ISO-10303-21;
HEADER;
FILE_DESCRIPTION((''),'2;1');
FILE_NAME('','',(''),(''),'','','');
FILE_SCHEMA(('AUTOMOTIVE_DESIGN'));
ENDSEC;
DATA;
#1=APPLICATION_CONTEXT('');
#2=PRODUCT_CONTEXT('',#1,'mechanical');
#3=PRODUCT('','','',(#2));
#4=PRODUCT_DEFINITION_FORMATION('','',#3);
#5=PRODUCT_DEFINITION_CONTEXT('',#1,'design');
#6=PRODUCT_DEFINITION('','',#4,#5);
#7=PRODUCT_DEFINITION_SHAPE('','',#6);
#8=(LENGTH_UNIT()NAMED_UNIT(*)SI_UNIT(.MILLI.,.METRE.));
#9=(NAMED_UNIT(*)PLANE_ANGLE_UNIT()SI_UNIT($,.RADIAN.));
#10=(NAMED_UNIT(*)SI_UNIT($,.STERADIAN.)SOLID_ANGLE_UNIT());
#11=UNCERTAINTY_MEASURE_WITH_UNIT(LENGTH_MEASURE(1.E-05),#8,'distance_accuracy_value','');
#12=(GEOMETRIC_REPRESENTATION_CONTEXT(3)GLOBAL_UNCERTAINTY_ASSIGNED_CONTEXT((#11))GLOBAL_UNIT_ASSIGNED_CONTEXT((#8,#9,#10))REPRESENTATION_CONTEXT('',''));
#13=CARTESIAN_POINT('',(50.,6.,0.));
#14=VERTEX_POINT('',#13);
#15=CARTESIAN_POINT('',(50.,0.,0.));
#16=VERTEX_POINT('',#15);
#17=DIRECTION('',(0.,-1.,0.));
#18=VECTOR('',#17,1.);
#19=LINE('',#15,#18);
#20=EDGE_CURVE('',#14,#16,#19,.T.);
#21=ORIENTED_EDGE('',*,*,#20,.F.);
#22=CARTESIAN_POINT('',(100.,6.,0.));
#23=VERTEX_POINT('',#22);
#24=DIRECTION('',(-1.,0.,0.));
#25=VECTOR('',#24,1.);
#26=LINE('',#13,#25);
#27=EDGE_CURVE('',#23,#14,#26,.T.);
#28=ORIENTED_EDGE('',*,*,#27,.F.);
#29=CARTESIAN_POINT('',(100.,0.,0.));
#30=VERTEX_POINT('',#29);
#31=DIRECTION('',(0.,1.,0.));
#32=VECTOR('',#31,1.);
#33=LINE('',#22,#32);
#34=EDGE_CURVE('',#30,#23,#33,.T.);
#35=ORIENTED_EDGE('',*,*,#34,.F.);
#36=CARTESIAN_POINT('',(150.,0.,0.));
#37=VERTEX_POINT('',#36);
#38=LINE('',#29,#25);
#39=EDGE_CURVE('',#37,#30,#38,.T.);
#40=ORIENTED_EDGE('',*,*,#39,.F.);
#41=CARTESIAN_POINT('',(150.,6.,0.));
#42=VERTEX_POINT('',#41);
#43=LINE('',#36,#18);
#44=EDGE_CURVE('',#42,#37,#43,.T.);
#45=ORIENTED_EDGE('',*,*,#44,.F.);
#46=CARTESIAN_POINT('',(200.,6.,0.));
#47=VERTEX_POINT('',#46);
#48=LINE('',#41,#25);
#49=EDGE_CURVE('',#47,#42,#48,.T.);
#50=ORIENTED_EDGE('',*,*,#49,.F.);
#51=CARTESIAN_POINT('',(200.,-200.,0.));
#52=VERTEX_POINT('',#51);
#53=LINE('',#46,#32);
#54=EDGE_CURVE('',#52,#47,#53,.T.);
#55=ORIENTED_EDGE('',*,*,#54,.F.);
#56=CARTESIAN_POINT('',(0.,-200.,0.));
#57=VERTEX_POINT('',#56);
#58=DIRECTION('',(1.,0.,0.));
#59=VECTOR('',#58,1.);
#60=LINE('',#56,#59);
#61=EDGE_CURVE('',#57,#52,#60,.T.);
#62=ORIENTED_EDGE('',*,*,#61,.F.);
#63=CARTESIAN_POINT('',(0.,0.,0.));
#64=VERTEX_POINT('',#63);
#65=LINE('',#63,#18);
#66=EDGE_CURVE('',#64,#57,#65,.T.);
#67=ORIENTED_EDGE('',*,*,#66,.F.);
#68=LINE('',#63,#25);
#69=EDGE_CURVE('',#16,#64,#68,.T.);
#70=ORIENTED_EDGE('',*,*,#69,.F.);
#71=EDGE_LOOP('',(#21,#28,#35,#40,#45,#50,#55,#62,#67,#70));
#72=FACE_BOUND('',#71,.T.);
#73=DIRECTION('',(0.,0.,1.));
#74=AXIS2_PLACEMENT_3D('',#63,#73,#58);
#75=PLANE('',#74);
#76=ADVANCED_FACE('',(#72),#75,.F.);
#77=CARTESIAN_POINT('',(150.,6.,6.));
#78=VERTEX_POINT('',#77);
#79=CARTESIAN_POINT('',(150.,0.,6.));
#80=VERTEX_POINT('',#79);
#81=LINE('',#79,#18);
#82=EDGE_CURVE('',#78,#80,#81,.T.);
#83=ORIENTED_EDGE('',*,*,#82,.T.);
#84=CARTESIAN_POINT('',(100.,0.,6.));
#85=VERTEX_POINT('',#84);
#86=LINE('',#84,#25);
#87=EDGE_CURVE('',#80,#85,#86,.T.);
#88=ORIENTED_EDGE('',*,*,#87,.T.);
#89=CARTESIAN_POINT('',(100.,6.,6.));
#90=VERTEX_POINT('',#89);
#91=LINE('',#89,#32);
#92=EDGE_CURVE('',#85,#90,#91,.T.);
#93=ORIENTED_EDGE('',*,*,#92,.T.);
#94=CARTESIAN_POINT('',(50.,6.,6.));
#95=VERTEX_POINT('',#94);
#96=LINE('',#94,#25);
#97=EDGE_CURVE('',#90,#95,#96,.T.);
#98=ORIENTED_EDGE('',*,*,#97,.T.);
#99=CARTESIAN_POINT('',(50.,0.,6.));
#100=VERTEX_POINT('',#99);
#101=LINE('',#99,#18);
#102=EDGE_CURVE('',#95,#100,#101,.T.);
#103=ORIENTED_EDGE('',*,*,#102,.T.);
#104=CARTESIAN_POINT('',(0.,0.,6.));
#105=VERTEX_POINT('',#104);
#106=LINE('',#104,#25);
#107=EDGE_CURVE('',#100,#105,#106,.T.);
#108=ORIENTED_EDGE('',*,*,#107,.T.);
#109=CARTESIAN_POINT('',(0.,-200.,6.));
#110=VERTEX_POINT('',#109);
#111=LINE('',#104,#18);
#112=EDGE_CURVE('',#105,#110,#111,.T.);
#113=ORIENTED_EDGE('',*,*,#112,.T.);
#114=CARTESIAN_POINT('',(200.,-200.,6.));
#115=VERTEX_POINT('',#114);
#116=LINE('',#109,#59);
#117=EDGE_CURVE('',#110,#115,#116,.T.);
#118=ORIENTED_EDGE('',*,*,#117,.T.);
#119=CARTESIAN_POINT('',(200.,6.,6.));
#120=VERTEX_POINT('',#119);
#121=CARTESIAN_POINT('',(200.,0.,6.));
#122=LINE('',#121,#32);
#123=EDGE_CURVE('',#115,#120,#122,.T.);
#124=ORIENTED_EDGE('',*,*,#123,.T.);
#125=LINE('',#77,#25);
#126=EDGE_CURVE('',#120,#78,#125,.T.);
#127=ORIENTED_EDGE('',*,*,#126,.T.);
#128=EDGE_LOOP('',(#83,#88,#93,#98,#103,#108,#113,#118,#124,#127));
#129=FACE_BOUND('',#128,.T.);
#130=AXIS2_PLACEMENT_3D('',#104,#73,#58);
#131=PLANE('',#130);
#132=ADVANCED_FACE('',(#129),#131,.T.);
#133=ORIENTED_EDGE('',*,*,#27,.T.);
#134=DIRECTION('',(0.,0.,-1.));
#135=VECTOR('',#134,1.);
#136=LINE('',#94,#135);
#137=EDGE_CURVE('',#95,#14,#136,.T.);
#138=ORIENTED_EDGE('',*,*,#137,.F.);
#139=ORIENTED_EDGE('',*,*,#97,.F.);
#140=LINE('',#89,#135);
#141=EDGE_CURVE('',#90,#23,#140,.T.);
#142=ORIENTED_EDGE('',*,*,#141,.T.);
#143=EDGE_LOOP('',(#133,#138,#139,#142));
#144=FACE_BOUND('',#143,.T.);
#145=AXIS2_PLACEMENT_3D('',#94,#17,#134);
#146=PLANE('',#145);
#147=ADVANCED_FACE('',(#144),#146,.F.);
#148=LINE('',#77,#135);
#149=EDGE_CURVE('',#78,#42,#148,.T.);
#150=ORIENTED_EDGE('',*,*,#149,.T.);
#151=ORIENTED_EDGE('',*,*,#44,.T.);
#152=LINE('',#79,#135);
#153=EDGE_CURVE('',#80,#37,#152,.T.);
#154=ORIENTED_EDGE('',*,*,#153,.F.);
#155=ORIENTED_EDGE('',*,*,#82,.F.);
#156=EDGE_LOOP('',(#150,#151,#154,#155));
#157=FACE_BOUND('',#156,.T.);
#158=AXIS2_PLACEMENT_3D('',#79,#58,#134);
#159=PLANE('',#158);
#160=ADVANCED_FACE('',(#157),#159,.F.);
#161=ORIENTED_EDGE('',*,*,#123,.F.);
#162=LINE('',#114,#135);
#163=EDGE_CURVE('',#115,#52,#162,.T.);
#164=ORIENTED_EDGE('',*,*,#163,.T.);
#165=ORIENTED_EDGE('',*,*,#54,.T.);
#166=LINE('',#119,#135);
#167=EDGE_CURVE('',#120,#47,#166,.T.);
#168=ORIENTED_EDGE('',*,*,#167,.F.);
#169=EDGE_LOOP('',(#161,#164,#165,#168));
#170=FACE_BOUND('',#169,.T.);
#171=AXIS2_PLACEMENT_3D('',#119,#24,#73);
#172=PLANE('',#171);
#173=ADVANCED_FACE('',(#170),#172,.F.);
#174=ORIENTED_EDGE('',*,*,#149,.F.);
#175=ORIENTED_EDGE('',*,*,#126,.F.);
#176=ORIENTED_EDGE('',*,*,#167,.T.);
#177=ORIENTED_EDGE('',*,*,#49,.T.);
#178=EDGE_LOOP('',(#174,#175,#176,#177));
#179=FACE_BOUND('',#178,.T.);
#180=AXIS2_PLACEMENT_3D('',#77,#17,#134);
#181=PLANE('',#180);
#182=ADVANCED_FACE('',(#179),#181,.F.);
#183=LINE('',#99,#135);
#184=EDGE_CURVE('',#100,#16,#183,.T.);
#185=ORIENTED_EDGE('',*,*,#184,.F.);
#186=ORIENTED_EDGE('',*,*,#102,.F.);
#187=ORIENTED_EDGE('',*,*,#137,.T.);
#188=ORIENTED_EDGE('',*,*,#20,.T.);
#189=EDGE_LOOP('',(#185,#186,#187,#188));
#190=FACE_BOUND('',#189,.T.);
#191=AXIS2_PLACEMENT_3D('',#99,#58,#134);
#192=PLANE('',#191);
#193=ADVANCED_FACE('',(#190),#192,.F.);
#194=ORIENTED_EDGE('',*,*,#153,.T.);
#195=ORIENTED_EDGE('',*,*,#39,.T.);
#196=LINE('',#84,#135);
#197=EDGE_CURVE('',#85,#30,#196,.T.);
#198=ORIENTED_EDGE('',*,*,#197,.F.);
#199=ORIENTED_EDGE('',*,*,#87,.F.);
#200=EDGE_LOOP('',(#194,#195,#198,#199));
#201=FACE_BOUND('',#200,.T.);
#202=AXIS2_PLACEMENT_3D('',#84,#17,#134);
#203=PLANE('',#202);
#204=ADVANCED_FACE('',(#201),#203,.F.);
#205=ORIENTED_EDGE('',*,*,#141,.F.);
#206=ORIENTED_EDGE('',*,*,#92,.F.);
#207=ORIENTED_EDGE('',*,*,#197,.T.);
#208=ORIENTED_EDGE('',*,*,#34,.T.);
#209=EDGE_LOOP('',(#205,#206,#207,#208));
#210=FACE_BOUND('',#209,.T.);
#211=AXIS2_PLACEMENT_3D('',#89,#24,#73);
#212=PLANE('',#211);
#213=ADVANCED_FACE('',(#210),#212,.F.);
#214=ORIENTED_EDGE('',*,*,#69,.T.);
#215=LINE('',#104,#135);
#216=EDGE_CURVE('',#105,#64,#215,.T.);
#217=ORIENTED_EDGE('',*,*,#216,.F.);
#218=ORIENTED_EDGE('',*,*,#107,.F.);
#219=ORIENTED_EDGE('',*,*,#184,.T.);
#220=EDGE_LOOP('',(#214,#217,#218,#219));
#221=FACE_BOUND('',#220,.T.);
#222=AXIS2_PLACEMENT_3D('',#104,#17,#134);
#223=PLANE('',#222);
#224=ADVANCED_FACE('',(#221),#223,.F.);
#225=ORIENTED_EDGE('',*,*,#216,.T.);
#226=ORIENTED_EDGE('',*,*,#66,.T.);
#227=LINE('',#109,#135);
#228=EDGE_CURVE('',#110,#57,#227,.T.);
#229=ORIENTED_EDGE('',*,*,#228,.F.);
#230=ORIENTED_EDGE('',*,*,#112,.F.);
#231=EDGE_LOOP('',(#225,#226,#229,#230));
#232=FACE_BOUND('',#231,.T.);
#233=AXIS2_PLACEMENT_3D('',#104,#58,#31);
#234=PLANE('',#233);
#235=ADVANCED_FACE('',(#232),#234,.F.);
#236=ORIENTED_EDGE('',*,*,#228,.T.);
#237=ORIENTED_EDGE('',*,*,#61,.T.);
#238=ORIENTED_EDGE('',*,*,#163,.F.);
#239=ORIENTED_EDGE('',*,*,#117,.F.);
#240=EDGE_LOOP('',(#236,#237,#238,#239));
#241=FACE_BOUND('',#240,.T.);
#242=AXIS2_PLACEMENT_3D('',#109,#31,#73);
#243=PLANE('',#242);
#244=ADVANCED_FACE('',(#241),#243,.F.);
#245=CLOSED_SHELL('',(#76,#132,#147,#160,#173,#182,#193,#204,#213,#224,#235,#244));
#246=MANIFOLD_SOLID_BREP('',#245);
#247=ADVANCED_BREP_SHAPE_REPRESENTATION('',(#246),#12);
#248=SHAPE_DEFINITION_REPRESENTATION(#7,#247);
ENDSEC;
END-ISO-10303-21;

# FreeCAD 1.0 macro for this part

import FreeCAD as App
import Part
import Sketcher

doc = App.newDocument("Part")
body = doc.addObject("PartDesign::Body", "Body")

# Sketch on XY plane
sketch1 = body.newObject("Sketcher::SketchObject", "Sketch")
sketch1.AttachmentSupport = (doc.getObject("XY_Plane"), [""])
sketch1.MapMode = "FlatFace"
sketch1.addGeometry(Part.LineSegment(App.Vector(50, 0, 0), App.Vector(0, 0, 0)), False)
sketch1.addGeometry(Part.LineSegment(App.Vector(0, 0, 0), App.Vector(0, -200, 0)), False)
sketch1.addGeometry(Part.LineSegment(App.Vector(0, -200, 0), App.Vector(200, -200, 0)), False)
sketch1.addGeometry(Part.LineSegment(App.Vector(200, -200, 0), App.Vector(200, 6, 0)), False)
sketch1.addGeometry(Part.LineSegment(App.Vector(200, 6, 0), App.Vector(150, 6, 0)), False)
sketch1.addGeometry(Part.LineSegment(App.Vector(150, 6, 0), App.Vector(150, 0, 0)), False)
sketch1.addGeometry(Part.LineSegment(App.Vector(150, 0, 0), App.Vector(100, 0, 0)), False)
sketch1.addGeometry(Part.LineSegment(App.Vector(100, 0, 0), App.Vector(100, 6, 0)), False)
sketch1.addGeometry(Part.LineSegment(App.Vector(100, 6, 0), App.Vector(50, 6, 0)), False)
sketch1.addGeometry(Part.LineSegment(App.Vector(50, 6, 0), App.Vector(50, 0, 0)), False)
sketch1.addConstraint(Sketcher.Constraint("Coincident", 0, 2, 1, 1))
sketch1.addConstraint(Sketcher.Constraint("Coincident", 1, 2, 2, 1))
sketch1.addConstraint(Sketcher.Constraint("Coincident", 2, 2, 3, 1))
sketch1.addConstraint(Sketcher.Constraint("Coincident", 3, 2, 4, 1))
sketch1.addConstraint(Sketcher.Constraint("Coincident", 4, 2, 5, 1))
sketch1.addConstraint(Sketcher.Constraint("Coincident", 5, 2, 6, 1))
sketch1.addConstraint(Sketcher.Constraint("Coincident", 6, 2, 7, 1))
sketch1.addConstraint(Sketcher.Constraint("Coincident", 7, 2, 8, 1))
sketch1.addConstraint(Sketcher.Constraint("Coincident", 8, 2, 9, 1))
sketch1.addConstraint(Sketcher.Constraint("Coincident", 9, 2, 0, 1))
sketch1.addConstraint(Sketcher.Constraint("Horizontal", 0))
sketch1.addConstraint(Sketcher.Constraint("Vertical", 1))
sketch1.addConstraint(Sketcher.Constraint("Horizontal", 2))
sketch1.addConstraint(Sketcher.Constraint("Vertical", 3))
sketch1.addConstraint(Sketcher.Constraint("Horizontal", 4))
sketch1.addConstraint(Sketcher.Constraint("Vertical", 5))
sketch1.addConstraint(Sketcher.Constraint("Horizontal", 6))
sketch1.addConstraint(Sketcher.Constraint("Vertical", 7))
sketch1.addConstraint(Sketcher.Constraint("Horizontal", 8))
sketch1.addConstraint(Sketcher.Constraint("Vertical", 9))
sketch1.addConstraint(Sketcher.Constraint("Coincident", 0, 2, -1, 1))
sketch1.addConstraint(Sketcher.Constraint("PointOnObject", 5, 2, -1))
sketch1.addConstraint(Sketcher.Constraint("Horizontal", 4, 2, 7, 2))
sketch1.addConstraint(Sketcher.Constraint("Equal", 0, 4))
sketch1.addConstraint(Sketcher.Constraint("Equal", 4, 6))
sketch1.addConstraint(Sketcher.Constraint("Equal", 6, 8))
sketch1.addConstraint(Sketcher.Constraint("Equal", 2, 1))
sketch1.addConstraint(Sketcher.Constraint("DistanceX", 0, 2, 0, 1, 50.0))
sketch1.addConstraint(Sketcher.Constraint("DistanceY", 3, 1, 3, 2, 206.0))
pad1 = body.newObject("PartDesign::Pad", "Pad")
pad1.Profile = sketch1
pad1.Length = 6

doc.recompute()
